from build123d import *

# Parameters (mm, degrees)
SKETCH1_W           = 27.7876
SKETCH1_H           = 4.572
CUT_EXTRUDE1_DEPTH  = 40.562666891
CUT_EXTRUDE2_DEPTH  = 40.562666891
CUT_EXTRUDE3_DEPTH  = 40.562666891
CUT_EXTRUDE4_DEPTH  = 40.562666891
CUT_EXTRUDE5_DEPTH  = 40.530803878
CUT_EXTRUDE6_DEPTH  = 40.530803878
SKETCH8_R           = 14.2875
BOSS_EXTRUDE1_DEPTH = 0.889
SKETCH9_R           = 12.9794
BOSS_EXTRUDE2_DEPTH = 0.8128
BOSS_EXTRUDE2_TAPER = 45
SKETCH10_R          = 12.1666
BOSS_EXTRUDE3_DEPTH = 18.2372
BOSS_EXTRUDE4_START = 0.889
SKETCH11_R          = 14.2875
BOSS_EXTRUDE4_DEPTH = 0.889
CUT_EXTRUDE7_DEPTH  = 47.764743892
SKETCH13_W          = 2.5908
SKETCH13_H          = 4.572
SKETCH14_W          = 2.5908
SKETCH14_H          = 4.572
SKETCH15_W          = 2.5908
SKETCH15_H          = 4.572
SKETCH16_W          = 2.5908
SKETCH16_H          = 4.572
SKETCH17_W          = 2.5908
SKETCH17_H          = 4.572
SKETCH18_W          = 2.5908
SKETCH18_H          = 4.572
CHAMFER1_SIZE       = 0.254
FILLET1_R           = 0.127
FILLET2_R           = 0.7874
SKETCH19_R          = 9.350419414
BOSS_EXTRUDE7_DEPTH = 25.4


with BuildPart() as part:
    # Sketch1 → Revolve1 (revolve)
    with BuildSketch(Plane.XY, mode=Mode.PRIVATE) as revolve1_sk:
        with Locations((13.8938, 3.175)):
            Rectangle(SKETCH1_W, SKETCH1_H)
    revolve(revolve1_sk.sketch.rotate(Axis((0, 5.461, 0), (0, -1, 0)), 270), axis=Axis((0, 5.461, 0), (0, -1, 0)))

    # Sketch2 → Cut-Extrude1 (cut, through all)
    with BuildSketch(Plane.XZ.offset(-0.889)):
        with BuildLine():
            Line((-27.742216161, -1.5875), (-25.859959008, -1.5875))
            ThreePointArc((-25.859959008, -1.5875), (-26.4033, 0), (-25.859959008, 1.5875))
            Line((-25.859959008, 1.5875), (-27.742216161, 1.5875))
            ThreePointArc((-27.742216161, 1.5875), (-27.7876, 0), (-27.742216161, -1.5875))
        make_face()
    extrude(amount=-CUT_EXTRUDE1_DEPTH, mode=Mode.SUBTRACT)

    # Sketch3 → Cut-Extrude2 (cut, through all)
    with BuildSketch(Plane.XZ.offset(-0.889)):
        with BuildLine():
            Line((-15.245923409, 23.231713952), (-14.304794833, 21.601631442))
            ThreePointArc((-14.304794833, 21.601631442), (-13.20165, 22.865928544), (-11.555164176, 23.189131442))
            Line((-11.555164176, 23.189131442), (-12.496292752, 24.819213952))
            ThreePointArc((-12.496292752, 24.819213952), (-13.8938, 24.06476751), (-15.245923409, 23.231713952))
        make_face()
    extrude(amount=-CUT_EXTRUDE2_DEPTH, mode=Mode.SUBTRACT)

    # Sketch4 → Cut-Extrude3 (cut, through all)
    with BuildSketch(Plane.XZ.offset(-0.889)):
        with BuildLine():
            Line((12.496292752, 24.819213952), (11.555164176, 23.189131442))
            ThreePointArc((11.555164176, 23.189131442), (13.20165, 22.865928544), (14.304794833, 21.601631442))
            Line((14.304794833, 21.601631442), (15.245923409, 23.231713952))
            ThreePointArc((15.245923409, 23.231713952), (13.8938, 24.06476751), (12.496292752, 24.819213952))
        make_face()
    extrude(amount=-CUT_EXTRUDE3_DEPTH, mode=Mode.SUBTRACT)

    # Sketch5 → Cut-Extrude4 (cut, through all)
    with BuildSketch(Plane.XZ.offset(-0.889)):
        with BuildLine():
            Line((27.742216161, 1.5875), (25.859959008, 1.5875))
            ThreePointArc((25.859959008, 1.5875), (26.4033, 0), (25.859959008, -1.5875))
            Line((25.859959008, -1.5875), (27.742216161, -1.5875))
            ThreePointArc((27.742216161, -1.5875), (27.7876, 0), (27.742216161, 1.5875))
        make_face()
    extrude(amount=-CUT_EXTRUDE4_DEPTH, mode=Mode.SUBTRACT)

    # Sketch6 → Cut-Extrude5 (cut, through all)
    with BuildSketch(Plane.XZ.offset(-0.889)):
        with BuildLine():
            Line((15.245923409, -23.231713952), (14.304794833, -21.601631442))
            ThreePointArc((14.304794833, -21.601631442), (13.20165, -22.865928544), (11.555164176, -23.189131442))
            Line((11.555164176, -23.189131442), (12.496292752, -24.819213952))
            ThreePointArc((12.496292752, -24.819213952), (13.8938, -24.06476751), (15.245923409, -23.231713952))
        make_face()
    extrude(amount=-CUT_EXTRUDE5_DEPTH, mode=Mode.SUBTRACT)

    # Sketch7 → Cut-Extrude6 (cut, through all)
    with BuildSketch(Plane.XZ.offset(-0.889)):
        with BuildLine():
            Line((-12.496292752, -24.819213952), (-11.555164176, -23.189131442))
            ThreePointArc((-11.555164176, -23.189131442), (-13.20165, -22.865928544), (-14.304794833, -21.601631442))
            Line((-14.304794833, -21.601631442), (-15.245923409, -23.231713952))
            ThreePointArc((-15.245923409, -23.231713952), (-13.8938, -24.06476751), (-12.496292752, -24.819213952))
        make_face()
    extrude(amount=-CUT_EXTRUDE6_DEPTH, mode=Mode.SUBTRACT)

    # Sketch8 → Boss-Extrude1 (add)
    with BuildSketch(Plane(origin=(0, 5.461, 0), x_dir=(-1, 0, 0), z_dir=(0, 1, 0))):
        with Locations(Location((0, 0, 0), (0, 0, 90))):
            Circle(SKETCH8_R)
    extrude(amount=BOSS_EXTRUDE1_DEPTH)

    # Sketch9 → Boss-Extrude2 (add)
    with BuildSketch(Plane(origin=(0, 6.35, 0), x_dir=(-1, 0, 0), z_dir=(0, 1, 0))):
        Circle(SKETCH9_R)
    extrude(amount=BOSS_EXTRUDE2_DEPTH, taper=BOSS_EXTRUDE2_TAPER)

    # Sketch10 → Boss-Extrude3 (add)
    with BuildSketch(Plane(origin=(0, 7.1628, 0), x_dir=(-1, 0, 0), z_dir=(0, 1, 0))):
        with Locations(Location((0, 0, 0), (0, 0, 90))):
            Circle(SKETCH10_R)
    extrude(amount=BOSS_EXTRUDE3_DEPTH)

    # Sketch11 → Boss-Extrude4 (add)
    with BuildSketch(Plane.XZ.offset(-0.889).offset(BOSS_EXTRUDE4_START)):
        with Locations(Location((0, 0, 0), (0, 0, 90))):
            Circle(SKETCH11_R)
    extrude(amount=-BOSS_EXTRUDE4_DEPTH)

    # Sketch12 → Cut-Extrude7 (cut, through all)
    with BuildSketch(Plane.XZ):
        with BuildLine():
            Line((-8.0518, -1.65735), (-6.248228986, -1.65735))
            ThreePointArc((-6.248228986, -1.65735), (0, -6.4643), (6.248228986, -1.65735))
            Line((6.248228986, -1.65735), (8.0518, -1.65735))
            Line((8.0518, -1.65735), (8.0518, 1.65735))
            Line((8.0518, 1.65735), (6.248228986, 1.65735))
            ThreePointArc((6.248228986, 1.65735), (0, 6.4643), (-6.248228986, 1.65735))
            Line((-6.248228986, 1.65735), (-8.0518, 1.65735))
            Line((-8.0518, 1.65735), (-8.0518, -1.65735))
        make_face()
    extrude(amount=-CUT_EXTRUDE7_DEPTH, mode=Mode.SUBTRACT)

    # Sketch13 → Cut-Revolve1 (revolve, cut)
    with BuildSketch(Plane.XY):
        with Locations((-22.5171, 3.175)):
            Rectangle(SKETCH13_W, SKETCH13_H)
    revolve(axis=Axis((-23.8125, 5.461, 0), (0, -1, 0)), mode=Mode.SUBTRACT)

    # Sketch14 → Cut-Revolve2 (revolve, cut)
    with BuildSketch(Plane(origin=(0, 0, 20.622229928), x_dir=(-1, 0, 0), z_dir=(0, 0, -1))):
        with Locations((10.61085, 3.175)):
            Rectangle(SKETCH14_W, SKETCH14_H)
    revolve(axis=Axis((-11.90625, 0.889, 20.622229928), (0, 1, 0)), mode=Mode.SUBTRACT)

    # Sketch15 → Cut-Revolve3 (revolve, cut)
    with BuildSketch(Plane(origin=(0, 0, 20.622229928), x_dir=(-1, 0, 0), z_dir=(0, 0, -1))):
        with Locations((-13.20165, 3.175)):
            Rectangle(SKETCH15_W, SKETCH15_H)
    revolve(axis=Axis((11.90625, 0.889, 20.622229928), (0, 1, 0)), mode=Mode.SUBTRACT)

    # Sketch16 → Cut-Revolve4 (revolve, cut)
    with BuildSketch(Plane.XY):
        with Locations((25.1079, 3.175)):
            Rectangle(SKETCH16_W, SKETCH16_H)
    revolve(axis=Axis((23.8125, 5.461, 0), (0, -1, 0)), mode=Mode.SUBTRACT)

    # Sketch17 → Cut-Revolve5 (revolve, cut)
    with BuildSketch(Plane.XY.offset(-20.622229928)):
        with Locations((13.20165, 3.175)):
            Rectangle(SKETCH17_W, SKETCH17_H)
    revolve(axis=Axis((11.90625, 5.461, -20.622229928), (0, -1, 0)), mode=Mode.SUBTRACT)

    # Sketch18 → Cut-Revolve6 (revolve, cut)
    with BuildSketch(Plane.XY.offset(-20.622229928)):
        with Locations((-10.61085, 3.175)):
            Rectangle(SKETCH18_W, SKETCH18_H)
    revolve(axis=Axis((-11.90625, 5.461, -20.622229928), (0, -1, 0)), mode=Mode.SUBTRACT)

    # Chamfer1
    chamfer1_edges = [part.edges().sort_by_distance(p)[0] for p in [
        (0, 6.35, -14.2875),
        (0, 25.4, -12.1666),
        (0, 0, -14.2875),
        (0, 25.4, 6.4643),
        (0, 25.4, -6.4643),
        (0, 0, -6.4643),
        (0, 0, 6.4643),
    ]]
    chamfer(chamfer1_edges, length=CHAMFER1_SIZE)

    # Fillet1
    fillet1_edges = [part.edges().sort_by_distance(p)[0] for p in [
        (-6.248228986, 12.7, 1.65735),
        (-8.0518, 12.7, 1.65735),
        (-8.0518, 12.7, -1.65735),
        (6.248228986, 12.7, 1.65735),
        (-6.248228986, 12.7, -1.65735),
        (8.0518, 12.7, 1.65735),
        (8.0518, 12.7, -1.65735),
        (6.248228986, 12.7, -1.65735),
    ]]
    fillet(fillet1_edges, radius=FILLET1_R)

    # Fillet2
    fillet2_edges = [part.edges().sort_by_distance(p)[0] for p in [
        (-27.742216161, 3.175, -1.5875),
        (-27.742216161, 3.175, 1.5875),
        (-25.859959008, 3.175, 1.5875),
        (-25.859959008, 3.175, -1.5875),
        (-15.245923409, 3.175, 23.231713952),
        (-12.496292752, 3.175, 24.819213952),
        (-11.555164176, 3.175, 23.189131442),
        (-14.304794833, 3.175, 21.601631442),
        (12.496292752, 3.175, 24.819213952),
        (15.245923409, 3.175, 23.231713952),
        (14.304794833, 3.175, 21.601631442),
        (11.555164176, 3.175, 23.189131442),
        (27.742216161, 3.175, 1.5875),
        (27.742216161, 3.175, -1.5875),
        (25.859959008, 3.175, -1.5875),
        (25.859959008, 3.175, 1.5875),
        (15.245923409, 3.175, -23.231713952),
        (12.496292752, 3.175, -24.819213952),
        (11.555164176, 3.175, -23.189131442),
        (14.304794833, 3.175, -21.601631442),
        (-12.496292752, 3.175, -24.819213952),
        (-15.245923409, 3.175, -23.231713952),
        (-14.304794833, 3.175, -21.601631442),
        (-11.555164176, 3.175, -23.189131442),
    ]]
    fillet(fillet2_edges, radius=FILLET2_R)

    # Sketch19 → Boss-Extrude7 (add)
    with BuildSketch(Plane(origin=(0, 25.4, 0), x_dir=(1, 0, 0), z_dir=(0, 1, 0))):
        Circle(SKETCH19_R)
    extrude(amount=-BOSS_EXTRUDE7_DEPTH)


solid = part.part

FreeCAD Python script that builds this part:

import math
import FreeCAD as App
import Part
import Sketcher
Q = App.Units.Quantity


def edges_at(feature, points):
    """Names of the edges that pass closest to the given points."""
    edges = feature.Shape.Edges
    near = lambda p: min(range(len(edges)), key=lambda i: edges[i].distToShape(Part.Vertex(*p))[0])
    return sorted({f"Edge{near(p) + 1}" for p in points})


def add_polygon(sketch, points):
    """Adds a closed chain of lines whose ends are joined by coincident constraints."""
    first, n = sketch.GeometryCount, len(points)
    for a, b in zip(points, points[1:] + points[:1]):
        sketch.addGeometry(Part.LineSegment(App.Vector(*a, 0), App.Vector(*b, 0)), False)
    for i in range(n):
        sketch.addConstraint(Sketcher.Constraint("Coincident", first + i, 2, first + (i + 1) % n, 1))

doc = App.newDocument("Part")
params = doc.addObject("Spreadsheet::Sheet", "Params")
for row, (alias, value) in enumerate([
    ("sketch1_height", "0.18 in"),
    ("sketch1_width", "1.094 in"),
    ("revolution_angle", "360 deg"),
    ("sketch2_radius", "0.102 in"),
    ("sketch2_radius2", "1.094 in"),
    ("sketch3_radius", "0.102 in"),
    ("sketch3_radius2", "1.094 in"),
    ("sketch4_radius", "0.102 in"),
    ("sketch4_radius2", "1.094 in"),
    ("sketch5_radius", "0.102 in"),
    ("sketch5_radius2", "1.094 in"),
    ("sketch6_radius", "0.102 in"),
    ("sketch6_radius2", "1.094 in"),
    ("sketch7_radius", "0.102 in"),
    ("sketch7_radius2", "1.094 in"),
    ("sketch8_diameter", "1.125 in"),
    ("pad1_length", "0.035 in"),
    ("sketch9_diameter", "1.022 in"),
    ("pad2_length", "0.032 in"),
    ("pad2_taper", "-45 deg"),
    ("sketch10_diameter", "0.958 in"),
    ("pad3_length", "0.718 in"),
    ("sketch11_diameter", "1.125 in"),
    ("pad4_length", "0.035 in"),
    ("sketch13_height", "0.18 in"),
    ("sketch13_width", "0.102 in"),
    ("groove_angle", "360 deg"),
    ("sketch14_height", "0.18 in"),
    ("sketch14_width", "0.102 in"),
    ("groove2_angle", "360 deg"),
    ("sketch15_height", "0.18 in"),
    ("sketch15_width", "0.102 in"),
    ("groove3_angle", "360 deg"),
    ("sketch16_height", "0.18 in"),
    ("sketch16_width", "0.102 in"),
    ("groove4_angle", "360 deg"),
    ("sketch17_height", "0.18 in"),
    ("sketch17_width", "0.102 in"),
    ("groove5_angle", "360 deg"),
    ("sketch18_height", "0.18 in"),
    ("sketch18_width", "0.102 in"),
    ("groove6_angle", "360 deg"),
    ("chamfer_size", "0.01 in"),
    ("fillet_radius", "0.005 in"),
    ("fillet2_radius", "0.031 in"),
    ("pad5_length", "1 in"),
], start=1):
    params.set(f"A{row}", alias)
    params.set(f"B{row}", "=" + value)
    params.setAlias(f"B{row}", alias)

body = doc.addObject("PartDesign::Body", "Body")

sketch1 = body.newObject("Sketcher::SketchObject", "Sketch")
sketch1.AttachmentSupport = (doc.getObject("XY_Plane"), [""])
sketch1.MapMode = "FlatFace"
add_polygon(sketch1, [(0, 5.5), (0, 0.9), (27.8, 0.9), (27.8, 5.5)])
sketch1.addConstraint([
    Sketcher.Constraint("Vertical", 0),
    Sketcher.Constraint("Horizontal", 1),
    Sketcher.Constraint("Vertical", 2),
    Sketcher.Constraint("Horizontal", 3),
    Sketcher.Constraint("PointOnObject", 0, 2, -2),
    Sketcher.Constraint("DistanceY", 0, 2, 0, 1, Q("0.18 in")),
    Sketcher.Constraint("DistanceX", 1, 1, 1, 2, Q("1.094 in")),
    Sketcher.Constraint("DistanceY", -1, 1, 0, 2, Q("0.035 in")),
])
sketch1.setExpression("Constraints[9]", "Params.sketch1_height")
sketch1.setExpression("Constraints[10]", "Params.sketch1_width")
revolution = body.newObject("PartDesign::Revolution", "Revolution")
revolution.Profile = sketch1
revolution.ReferenceAxis = (sketch1, ["V_Axis"])
revolution.setExpression("Angle", "Params.revolution_angle")

sketch2 = body.newObject("Sketcher::SketchObject", "Sketch001")
sketch2.AttachmentSupport = (doc.getObject("XZ_Plane"), [""])
sketch2.MapMode = "FlatFace"
sketch2.AttachmentOffset = App.Placement(App.Vector(0, 0, -0.035 * 25.4), App.Rotation())
sketch2.addGeometry([
    Part.LineSegment(App.Vector(-27.7, -1.6, 0), App.Vector(-25.9, -1.6, 0)),
    Part.ArcOfCircle(Part.Circle(App.Vector(-23.8, 0, 0), App.Vector(0, 0, 1), 2.6), math.radians(142), math.radians(218)),
    Part.LineSegment(App.Vector(-25.9, 1.6, 0), App.Vector(-27.7, 1.6, 0)),
    Part.ArcOfCircle(Part.Circle(App.Vector(0, 0, 0), App.Vector(0, 0, 1), 27.8), math.radians(176.72), math.radians(183.28)),
], False)
sketch2.addConstraint([
    Sketcher.Constraint("Coincident", 0, 2, 1, 2),
    Sketcher.Constraint("Coincident", 1, 1, 2, 1),
    Sketcher.Constraint("Coincident", 2, 2, 3, 1),
    Sketcher.Constraint("Coincident", 3, 2, 0, 1),
    Sketcher.Constraint("Horizontal", 0),
    Sketcher.Constraint("Horizontal", 2),
    Sketcher.Constraint("Coincident", 3, 3, -1, 1),
    Sketcher.Constraint("Symmetric", 0, 2, 1, 1, -1),
    Sketcher.Constraint("Radius", 1, Q("0.102 in")),
    Sketcher.Constraint("Radius", 3, Q("1.094 in")),
    Sketcher.Constraint("DistanceX", 1, 3, -1, 1, Q("0.9375 in")),
    Sketcher.Constraint("DistanceY", 0, 2, -1, 1, Q("0.0625 in")),
])
sketch2.setExpression("Constraints[8]", "Params.sketch2_radius")
sketch2.setExpression("Constraints[9]", "Params.sketch2_radius2")
pocket1 = body.newObject("PartDesign::Pocket", "Pocket")
pocket1.Profile = sketch2
pocket1.Type = "ThroughAll"

sketch3 = body.newObject("Sketcher::SketchObject", "Sketch002")
sketch3.AttachmentSupport = (doc.getObject("XZ_Plane"), [""])
sketch3.MapMode = "FlatFace"
sketch3.AttachmentOffset = App.Placement(App.Vector(0, 0, -0.035 * 25.4), App.Rotation())
sketch3.addGeometry([
    Part.LineSegment(App.Vector(-15.245923, 23.231714, 0), App.Vector(-14.304795, 21.601631, 0)),
    Part.ArcOfCircle(Part.Circle(App.Vector(-11.90625, 20.62223, 0), App.Vector(0, 0, 1), 2.5908), math.radians(82.211743), math.radians(157.788257)),
    Part.LineSegment(App.Vector(-11.555164, 23.189131, 0), App.Vector(-12.496293, 24.819214, 0)),
    Part.ArcOfCircle(Part.Circle(App.Vector(0, 0, 0), App.Vector(0, 0, 1), 27.7876), math.radians(116.72492), math.radians(123.27508)),
], False)
sketch3.addConstraint([
    Sketcher.Constraint("Coincident", 0, 2, 1, 2),
    Sketcher.Constraint("Coincident", 1, 1, 2, 1),
    Sketcher.Constraint("Coincident", 2, 2, 3, 1),
    Sketcher.Constraint("Coincident", 3, 2, 0, 1),
    Sketcher.Constraint("Coincident", 3, 3, -1, 1),
    Sketcher.Constraint("Parallel", 0, 2),
    Sketcher.Constraint("Equal", 0, 2),
    Sketcher.Constraint("Angle", 0, Q("-60 deg")),
    Sketcher.Constraint("Radius", 1, Q("0.102 in")),
    Sketcher.Constraint("Radius", 3, Q("1.094 in")),
    Sketcher.Constraint("DistanceX", 1, 3, -1, 1, Q("0.46875 in")),
    Sketcher.Constraint("DistanceY", 0, 2, 1, 1, Q("0.0625 in")),
    Sketcher.Constraint("DistanceY", 1, 3, 0, 2, 0.979402),
])
sketch3.setExpression("Constraints[8]", "Params.sketch3_radius")
sketch3.setExpression("Constraints[9]", "Params.sketch3_radius2")
pocket2 = body.newObject("PartDesign::Pocket", "Pocket001")
pocket2.Profile = sketch3
pocket2.Type = "ThroughAll"

sketch4 = body.newObject("Sketcher::SketchObject", "Sketch003")
sketch4.AttachmentSupport = (doc.getObject("XZ_Plane"), [""])
sketch4.MapMode = "FlatFace"
sketch4.AttachmentOffset = App.Placement(App.Vector(0, 0, -0.035 * 25.4), App.Rotation())
sketch4.addGeometry([
    Part.LineSegment(App.Vector(12.496293, 24.819214, 0), App.Vector(11.555164, 23.189131, 0)),
    Part.ArcOfCircle(Part.Circle(App.Vector(11.90625, 20.62223, 0), App.Vector(0, 0, 1), 2.5908), math.radians(22.211743), math.radians(97.788257)),
    Part.LineSegment(App.Vector(14.304795, 21.601631, 0), App.Vector(15.245923, 23.231714, 0)),
    Part.ArcOfCircle(Part.Circle(App.Vector(0, 0, 0), App.Vector(0, 0, 1), 27.7876), math.radians(56.72492), math.radians(63.27508)),
], False)
sketch4.addConstraint([
    Sketcher.Constraint("Coincident", 0, 2, 1, 2),
    Sketcher.Constraint("Coincident", 1, 1, 2, 1),
    Sketcher.Constraint("Coincident", 2, 2, 3, 1),
    Sketcher.Constraint("Coincident", 3, 2, 0, 1),
    Sketcher.Constraint("Coincident", 3, 3, -1, 1),
    Sketcher.Constraint("Radius", 1, Q("0.102 in")),
    Sketcher.Constraint("Radius", 3, Q("1.094 in")),
    Sketcher.Constraint("DistanceX", -1, 1, 1, 3, Q("0.46875 in")),
    Sketcher.Constraint("DistanceY", 1, 1, 0, 2, Q("0.0625 in")),
    Sketcher.Constraint("DistanceY", 2, 2, 3, 2, Q("0.0625 in")),
    Sketcher.Constraint("DistanceY", 1, 3, 0, 2, 2.566902),
    Sketcher.Constraint("DistanceY", -1, 1, 1, 3, 20.62223),
    Sketcher.Constraint("DistanceX", 1, 1, 2, 2, 0.941129),
])
sketch4.setExpression("Constraints[5]", "Params.sketch4_radius")
sketch4.setExpression("Constraints[6]", "Params.sketch4_radius2")
pocket3 = body.newObject("PartDesign::Pocket", "Pocket002")
pocket3.Profile = sketch4
pocket3.Type = "ThroughAll"

sketch5 = body.newObject("Sketcher::SketchObject", "Sketch004")
sketch5.AttachmentSupport = (doc.getObject("XZ_Plane"), [""])
sketch5.MapMode = "FlatFace"
sketch5.AttachmentOffset = App.Placement(App.Vector(0, 0, -0.035 * 25.4), App.Rotation())
sketch5.addGeometry([
    Part.LineSegment(App.Vector(27.7, 1.6, 0), App.Vector(25.9, 1.6, 0)),
    Part.ArcOfCircle(Part.Circle(App.Vector(23.8, 0, 0), App.Vector(0, 0, 1), 2.6), math.radians(-38), math.radians(38)),
    Part.LineSegment(App.Vector(25.9, -1.6, 0), App.Vector(27.7, -1.6, 0)),
    Part.ArcOfCircle(Part.Circle(App.Vector(0, 0, 0), App.Vector(0, 0, 1), 27.8), math.radians(-3.28), math.radians(3.28)),
], False)
sketch5.addConstraint([
    Sketcher.Constraint("Coincident", 0, 2, 1, 2),
    Sketcher.Constraint("Coincident", 1, 1, 2, 1),
    Sketcher.Constraint("Coincident", 2, 2, 3, 1),
    Sketcher.Constraint("Coincident", 3, 2, 0, 1),
    Sketcher.Constraint("Horizontal", 0),
    Sketcher.Constraint("Horizontal", 2),
    Sketcher.Constraint("Coincident", 3, 3, -1, 1),
    Sketcher.Constraint("Symmetric", 0, 2, 1, 1, -1),
    Sketcher.Constraint("Radius", 1, Q("0.102 in")),
    Sketcher.Constraint("Radius", 3, Q("1.094 in")),
    Sketcher.Constraint("DistanceX", -1, 1, 1, 3, Q("0.9375 in")),
    Sketcher.Constraint("DistanceY", -1, 1, 0, 2, Q("0.0625 in")),
])
sketch5.setExpression("Constraints[8]", "Params.sketch5_radius")
sketch5.setExpression("Constraints[9]", "Params.sketch5_radius2")
pocket4 = body.newObject("PartDesign::Pocket", "Pocket003")
pocket4.Profile = sketch5
pocket4.Type = "ThroughAll"

sketch6 = body.newObject("Sketcher::SketchObject", "Sketch005")
sketch6.AttachmentSupport = (doc.getObject("XZ_Plane"), [""])
sketch6.MapMode = "FlatFace"
sketch6.AttachmentOffset = App.Placement(App.Vector(0, 0, -0.035 * 25.4), App.Rotation())
sketch6.addGeometry([
    Part.LineSegment(App.Vector(15.245923, -23.231714, 0), App.Vector(14.304795, -21.601631, 0)),
    Part.ArcOfCircle(Part.Circle(App.Vector(11.90625, -20.62223, 0), App.Vector(0, 0, 1), 2.5908), math.radians(-97.788257), math.radians(-22.211743)),
    Part.LineSegment(App.Vector(11.555164, -23.189131, 0), App.Vector(12.496293, -24.819214, 0)),
    Part.ArcOfCircle(Part.Circle(App.Vector(0, 0, 0), App.Vector(0, 0, 1), 27.7876), math.radians(-63.27508), math.radians(-56.72492)),
], False)
sketch6.addConstraint([
    Sketcher.Constraint("Coincident", 0, 2, 1, 2),
    Sketcher.Constraint("Coincident", 1, 1, 2, 1),
    Sketcher.Constraint("Coincident", 2, 2, 3, 1),
    Sketcher.Constraint("Coincident", 3, 2, 0, 1),
    Sketcher.Constraint("Coincident", 3, 3, -1, 1),
    Sketcher.Constraint("Parallel", 0, 2),
    Sketcher.Constraint("Equal", 0, 2),
    Sketcher.Constraint("Angle", 0, Q("120 deg")),
    Sketcher.Constraint("Radius", 1, Q("0.102 in")),
    Sketcher.Constraint("Radius", 3, Q("1.094 in")),
    Sketcher.Constraint("DistanceX", -1, 1, 1, 3, Q("0.46875 in")),
    Sketcher.Constraint("DistanceY", 1, 1, 0, 2, Q("0.0625 in")),
    Sketcher.Constraint("DistanceY", 0, 2, 1, 3, 0.979402),
])
sketch6.setExpression("Constraints[8]", "Params.sketch6_radius")
sketch6.setExpression("Constraints[9]", "Params.sketch6_radius2")
pocket5 = body.newObject("PartDesign::Pocket", "Pocket004")
pocket5.Profile = sketch6
pocket5.Type = "ThroughAll"

sketch7 = body.newObject("Sketcher::SketchObject", "Sketch006")
sketch7.AttachmentSupport = (doc.getObject("XZ_Plane"), [""])
sketch7.MapMode = "FlatFace"
sketch7.AttachmentOffset = App.Placement(App.Vector(0, 0, -0.035 * 25.4), App.Rotation())
sketch7.addGeometry([
    Part.LineSegment(App.Vector(-12.496293, -24.819214, 0), App.Vector(-11.555164, -23.189131, 0)),
    Part.ArcOfCircle(Part.Circle(App.Vector(-11.90625, -20.62223, 0), App.Vector(0, 0, 1), 2.5908), math.radians(-157.788257), math.radians(-82.211743)),
    Part.LineSegment(App.Vector(-14.304795, -21.601631, 0), App.Vector(-15.245923, -23.231714, 0)),
    Part.ArcOfCircle(Part.Circle(App.Vector(0, 0, 0), App.Vector(0, 0, 1), 27.7876), math.radians(-123.27508), math.radians(-116.72492)),
], False)
sketch7.addConstraint([
    Sketcher.Constraint("Coincident", 0, 2, 1, 2),
    Sketcher.Constraint("Coincident", 1, 1, 2, 1),
    Sketcher.Constraint("Coincident", 2, 2, 3, 1),
    Sketcher.Constraint("Coincident", 3, 2, 0, 1),
    Sketcher.Constraint("Coincident", 3, 3, -1, 1),
    Sketcher.Constraint("Parallel", 0, 2),
    Sketcher.Constraint("Equal", 0, 2),
    Sketcher.Constraint("Angle", 0, Q("60 deg")),
    Sketcher.Constraint("Radius", 1, Q("0.102 in")),
    Sketcher.Constraint("Radius", 3, Q("1.094 in")),
    Sketcher.Constraint("DistanceX", 1, 3, -1, 1, Q("0.46875 in")),
    Sketcher.Constraint("DistanceY", 0, 2, 1, 1, Q("0.0625 in")),
    Sketcher.Constraint("DistanceY", 0, 2, 1, 3, 2.566902),
])
sketch7.setExpression("Constraints[8]", "Params.sketch7_radius")
sketch7.setExpression("Constraints[9]", "Params.sketch7_radius2")
pocket6 = body.newObject("PartDesign::Pocket", "Pocket005")
pocket6.Profile = sketch7
pocket6.Type = "ThroughAll"

sketch8 = body.newObject("Sketcher::SketchObject", "Sketch007")
sketch8.AttachmentSupport = (doc.getObject("XZ_Plane"), [""])
sketch8.MapMode = "FlatFace"
sketch8.AttachmentOffset = App.Placement(App.Vector(0, 0, -0.215 * 25.4), App.Rotation())
sketch8.addGeometry(Part.Circle(App.Vector(0, 0, 0), App.Vector(0, 0, 1), 14), False)
sketch8.addConstraint([
    Sketcher.Constraint("Coincident", 0, 3, -1, 1),
    Sketcher.Constraint("Diameter", 0, Q("1.125 in")),
])
sketch8.setExpression("Constraints[1]", "Params.sketch8_diameter")
pad1 = body.newObject("PartDesign::Pad", "Pad")
pad1.Profile = sketch8
pad1.setExpression("Length", "Params.pad1_length")
pad1.Reversed = True

sketch9 = body.newObject("Sketcher::SketchObject", "Sketch008")
sketch9.AttachmentSupport = (doc.getObject("XZ_Plane"), [""])
sketch9.MapMode = "FlatFace"
sketch9.AttachmentOffset = App.Placement(App.Vector(0, 0, -0.25 * 25.4), App.Rotation())
sketch9.addGeometry(Part.Circle(App.Vector(0, 0, 0), App.Vector(0, 0, 1), 13), False)
sketch9.addConstraint([
    Sketcher.Constraint("Coincident", 0, 3, -1, 1),
    Sketcher.Constraint("Diameter", 0, Q("1.022 in")),
])
sketch9.setExpression("Constraints[1]", "Params.sketch9_diameter")
pad2 = body.newObject("PartDesign::Pad", "Pad001")
pad2.Profile = sketch9
pad2.setExpression("Length", "Params.pad2_length")
pad2.Reversed = True
pad2.setExpression("TaperAngle", "Params.pad2_taper")

sketch10 = body.newObject("Sketcher::SketchObject", "Sketch009")
sketch10.AttachmentSupport = (doc.getObject("XZ_Plane"), [""])
sketch10.MapMode = "FlatFace"
sketch10.AttachmentOffset = App.Placement(App.Vector(0, 0, -0.282 * 25.4), App.Rotation())
sketch10.addGeometry(Part.Circle(App.Vector(0, 0, 0), App.Vector(0, 0, 1), 12), False)
sketch10.addConstraint([
    Sketcher.Constraint("Coincident", 0, 3, -1, 1),
    Sketcher.Constraint("Diameter", 0, Q("0.958 in")),
])
sketch10.setExpression("Constraints[1]", "Params.sketch10_diameter")
pad3 = body.newObject("PartDesign::Pad", "Pad002")
pad3.Profile = sketch10
pad3.setExpression("Length", "Params.pad3_length")
pad3.Reversed = True

sketch11 = body.newObject("Sketcher::SketchObject", "Sketch010")
sketch11.AttachmentSupport = (doc.getObject("XZ_Plane"), [""])
sketch11.MapMode = "FlatFace"
sketch11.addGeometry(Part.Circle(App.Vector(0, 0, 0), App.Vector(0, 0, 1), 14), False)
sketch11.addConstraint([
    Sketcher.Constraint("Coincident", 0, 3, -1, 1),
    Sketcher.Constraint("Diameter", 0, Q("1.125 in")),
])
sketch11.setExpression("Constraints[1]", "Params.sketch11_diameter")
pad4 = body.newObject("PartDesign::Pad", "Pad003")
pad4.Profile = sketch11
pad4.setExpression("Length", "Params.pad4_length")
pad4.Reversed = True

sketch12 = body.newObject("Sketcher::SketchObject", "Sketch011")
sketch12.AttachmentSupport = (doc.getObject("XZ_Plane"), [""])
sketch12.MapMode = "FlatFace"
sketch12.addGeometry([
    Part.LineSegment(App.Vector(-8.1, -1.7, 0), App.Vector(-6.2, -1.7, 0)),
    Part.ArcOfCircle(Part.Circle(App.Vector(0, 0, 0), App.Vector(0, 0, 1), 6.5), math.radians(-165), math.radians(-15)),
    Part.LineSegment(App.Vector(6.2, -1.7, 0), App.Vector(8.1, -1.7, 0)),
    Part.LineSegment(App.Vector(8.1, -1.7, 0), App.Vector(8.1, 1.7, 0)),
    Part.LineSegment(App.Vector(8.1, 1.7, 0), App.Vector(6.2, 1.7, 0)),
    Part.ArcOfCircle(Part.Circle(App.Vector(0, 0, 0), App.Vector(0, 0, 1), 6.5), math.radians(15), math.radians(165)),
    Part.LineSegment(App.Vector(-6.2, 1.7, 0), App.Vector(-8.1, 1.7, 0)),
    Part.LineSegment(App.Vector(-8.1, 1.7, 0), App.Vector(-8.1, -1.7, 0)),
], False)
sketch12.addConstraint([
    Sketcher.Constraint("Coincident", 0, 2, 1, 1),
    Sketcher.Constraint("Coincident", 1, 2, 2, 1),
    Sketcher.Constraint("Coincident", 2, 2, 3, 1),
    Sketcher.Constraint("Coincident", 3, 2, 4, 1),
    Sketcher.Constraint("Coincident", 4, 2, 5, 1),
    Sketcher.Constraint("Coincident", 5, 2, 6, 1),
    Sketcher.Constraint("Coincident", 6, 2, 7, 1),
    Sketcher.Constraint("Coincident", 7, 2, 0, 1),
    Sketcher.Constraint("Horizontal", 0),
    Sketcher.Constraint("Horizontal", 2),
    Sketcher.Constraint("Vertical", 3),
    Sketcher.Constraint("Horizontal", 4),
    Sketcher.Constraint("Horizontal", 6),
    Sketcher.Constraint("Vertical", 7),
    Sketcher.Constraint("Coincident", 1, 3, -1, 1),
    Sketcher.Constraint("Coincident", 5, 3, -1, 1),
    Sketcher.Constraint("Equal", 1, 5),
    Sketcher.Constraint("Symmetric", 2, 2, 6, 2, -1, 1),
    Sketcher.Constraint("Horizontal", 0, 2, 1, 2),
    Sketcher.Constraint("Horizontal", 4, 2, 5, 2),
    Sketcher.Constraint("Radius", 1, Q("0.2545 in")),
    Sketcher.Constraint("DistanceY", 3, 1, 3, 2, Q("0.1305 in")),
    Sketcher.Constraint("DistanceX", -1, 1, 2, 2, Q("0.317 in")),
])
pocket7 = body.newObject("PartDesign::Pocket", "Pocket006")
pocket7.Profile = sketch12
pocket7.Type = "ThroughAll"

sketch13 = body.newObject("Sketcher::SketchObject", "Sketch012")
sketch13.AttachmentSupport = (doc.getObject("XY_Plane"), [""])
sketch13.MapMode = "FlatFace"
add_polygon(sketch13, [(-23.8, 5.5), (-23.8, 0.9), (-21.2, 0.9), (-21.2, 5.5)])
sketch13.addGeometry(Part.LineSegment(App.Vector(-23.8, 5.5, 0), App.Vector(-23.8, 0.9, 0)), True)
sketch13.addConstraint([
    Sketcher.Constraint("Vertical", 0),
    Sketcher.Constraint("Horizontal", 1),
    Sketcher.Constraint("Vertical", 2),
    Sketcher.Constraint("Horizontal", 3),
    Sketcher.Constraint("Vertical", 4),
    Sketcher.Constraint("Coincident", 4, 1, 3, 2),
    Sketcher.Constraint("Horizontal", 1, 2, 4, 2),
    Sketcher.Constraint("DistanceY", 0, 2, 0, 1, Q("0.18 in")),
    Sketcher.Constraint("DistanceX", 1, 1, 1, 2, Q("0.102 in")),
    Sketcher.Constraint("DistanceX", 0, 2, -1, 1, Q("0.9375 in")),
    Sketcher.Constraint("DistanceY", -1, 1, 0, 2, Q("0.035 in")),
])
sketch13.setExpression("Constraints[11]", "Params.sketch13_height")
sketch13.setExpression("Constraints[12]", "Params.sketch13_width")
groove = body.newObject("PartDesign::Groove", "Groove")
groove.Profile = sketch13
groove.ReferenceAxis = (sketch13, ["Axis0"])
groove.setExpression("Angle", "Params.groove_angle")

sketch14 = body.newObject("Sketcher::SketchObject", "Sketch013")
sketch14.AttachmentSupport = (doc.getObject("XY_Plane"), [""])
sketch14.MapMode = "FlatFace"
sketch14.AttachmentOffset = App.Placement(App.Vector(0, 0, 20.62223), App.Rotation())
add_polygon(sketch14, [(-9.3, 5.5), (-9.3, 0.9), (-11.9, 0.9), (-11.9, 5.5)])
sketch14.addGeometry(Part.LineSegment(App.Vector(-11.9, 0.9, 0), App.Vector(-11.9, 5.5, 0)), True)
sketch14.addConstraint([
    Sketcher.Constraint("Vertical", 0),
    Sketcher.Constraint("Horizontal", 1),
    Sketcher.Constraint("Vertical", 2),
    Sketcher.Constraint("Horizontal", 3),
    Sketcher.Constraint("Vertical", 4),
    Sketcher.Constraint("Coincident", 4, 1, 1, 2),
    Sketcher.Constraint("Horizontal", 3, 2, 4, 2),
    Sketcher.Constraint("DistanceY", 0, 2, 0, 1, Q("0.18 in")),
    Sketcher.Constraint("DistanceX", 1, 2, 1, 1, Q("0.102 in")),
    Sketcher.Constraint("DistanceY", -1, 1, 0, 2, Q("0.035 in")),
    Sketcher.Constraint("DistanceX", 1, 2, -1, 1, Q("0.46875 in")),
])
sketch14.setExpression("Constraints[11]", "Params.sketch14_height")
sketch14.setExpression("Constraints[12]", "Params.sketch14_width")
groove2 = body.newObject("PartDesign::Groove", "Groove001")
groove2.Profile = sketch14
groove2.ReferenceAxis = (sketch14, ["Axis0"])
groove2.setExpression("Angle", "Params.groove2_angle")

sketch15 = body.newObject("Sketcher::SketchObject", "Sketch014")
sketch15.AttachmentSupport = (doc.getObject("XY_Plane"), [""])
sketch15.MapMode = "FlatFace"
sketch15.AttachmentOffset = App.Placement(App.Vector(0, 0, 20.62223), App.Rotation())
add_polygon(sketch15, [(14.5, 5.5), (14.5, 0.9), (11.9, 0.9), (11.9, 5.5)])
sketch15.addGeometry(Part.LineSegment(App.Vector(11.9, 0.9, 0), App.Vector(11.9, 5.5, 0)), True)
sketch15.addConstraint([
    Sketcher.Constraint("Vertical", 0),
    Sketcher.Constraint("Horizontal", 1),
    Sketcher.Constraint("Vertical", 2),
    Sketcher.Constraint("Horizontal", 3),
    Sketcher.Constraint("Vertical", 4),
    Sketcher.Constraint("Coincident", 4, 1, 1, 2),
    Sketcher.Constraint("Horizontal", 3, 2, 4, 2),
    Sketcher.Constraint("DistanceY", 0, 2, 0, 1, Q("0.18 in")),
    Sketcher.Constraint("DistanceX", 1, 2, 1, 1, Q("0.102 in")),
    Sketcher.Constraint("DistanceY", -1, 1, 0, 2, Q("0.035 in")),
    Sketcher.Constraint("DistanceX", -1, 1, 1, 2, Q("0.46875 in")),
])
sketch15.setExpression("Constraints[11]", "Params.sketch15_height")
sketch15.setExpression("Constraints[12]", "Params.sketch15_width")
groove3 = body.newObject("PartDesign::Groove", "Groove002")
groove3.Profile = sketch15
groove3.ReferenceAxis = (sketch15, ["Axis0"])
groove3.setExpression("Angle", "Params.groove3_angle")

sketch16 = body.newObject("Sketcher::SketchObject", "Sketch015")
sketch16.AttachmentSupport = (doc.getObject("XY_Plane"), [""])
sketch16.MapMode = "FlatFace"
add_polygon(sketch16, [(23.8, 5.5), (23.8, 0.9), (26.4, 0.9), (26.4, 5.5)])
sketch16.addGeometry(Part.LineSegment(App.Vector(23.8, 5.5, 0), App.Vector(23.8, 0.9, 0)), True)
sketch16.addConstraint([
    Sketcher.Constraint("Vertical", 0),
    Sketcher.Constraint("Horizontal", 1),
    Sketcher.Constraint("Vertical", 2),
    Sketcher.Constraint("Horizontal", 3),
    Sketcher.Constraint("Vertical", 4),
    Sketcher.Constraint("Coincident", 4, 1, 3, 2),
    Sketcher.Constraint("Horizontal", 1, 2, 4, 2),
    Sketcher.Constraint("DistanceY", 0, 2, 0, 1, Q("0.18 in")),
    Sketcher.Constraint("DistanceX", 1, 1, 1, 2, Q("0.102 in")),
    Sketcher.Constraint("DistanceX", -1, 1, 0, 2, Q("0.9375 in")),
    Sketcher.Constraint("DistanceY", -1, 1, 0, 2, Q("0.035 in")),
])
sketch16.setExpression("Constraints[11]", "Params.sketch16_height")
sketch16.setExpression("Constraints[12]", "Params.sketch16_width")
groove4 = body.newObject("PartDesign::Groove", "Groove003")
groove4.Profile = sketch16
groove4.ReferenceAxis = (sketch16, ["Axis0"])
groove4.setExpression("Angle", "Params.groove4_angle")

sketch17 = body.newObject("Sketcher::SketchObject", "Sketch016")
sketch17.AttachmentSupport = (doc.getObject("XY_Plane"), [""])
sketch17.MapMode = "FlatFace"
sketch17.AttachmentOffset = App.Placement(App.Vector(0, 0, -20.62223), App.Rotation())
add_polygon(sketch17, [(11.9, 5.5), (11.9, 0.9), (14.5, 0.9), (14.5, 5.5)])
sketch17.addGeometry(Part.LineSegment(App.Vector(11.9, 5.5, 0), App.Vector(11.9, 0.9, 0)), True)
sketch17.addConstraint([
    Sketcher.Constraint("Vertical", 0),
    Sketcher.Constraint("Horizontal", 1),
    Sketcher.Constraint("Vertical", 2),
    Sketcher.Constraint("Horizontal", 3),
    Sketcher.Constraint("Vertical", 4),
    Sketcher.Constraint("Coincident", 4, 1, 3, 2),
    Sketcher.Constraint("Horizontal", 1, 2, 4, 2),
    Sketcher.Constraint("DistanceY", 0, 2, 0, 1, Q("0.18 in")),
    Sketcher.Constraint("DistanceX", 1, 1, 1, 2, Q("0.102 in")),
    Sketcher.Constraint("DistanceX", -1, 1, 0, 2, Q("0.46875 in")),
    Sketcher.Constraint("DistanceY", -1, 1, 0, 2, Q("0.035 in")),
])
sketch17.setExpression("Constraints[11]", "Params.sketch17_height")
sketch17.setExpression("Constraints[12]", "Params.sketch17_width")
groove5 = body.newObject("PartDesign::Groove", "Groove004")
groove5.Profile = sketch17
groove5.ReferenceAxis = (sketch17, ["Axis0"])
groove5.setExpression("Angle", "Params.groove5_angle")

sketch18 = body.newObject("Sketcher::SketchObject", "Sketch017")
sketch18.AttachmentSupport = (doc.getObject("XY_Plane"), [""])
sketch18.MapMode = "FlatFace"
sketch18.AttachmentOffset = App.Placement(App.Vector(0, 0, -20.62223), App.Rotation())
add_polygon(sketch18, [(-11.9, 5.5), (-11.9, 0.9), (-9.3, 0.9), (-9.3, 5.5)])
sketch18.addGeometry(Part.LineSegment(App.Vector(-11.9, 5.5, 0), App.Vector(-11.9, 0.9, 0)), True)
sketch18.addConstraint([
    Sketcher.Constraint("Vertical", 0),
    Sketcher.Constraint("Horizontal", 1),
    Sketcher.Constraint("Vertical", 2),
    Sketcher.Constraint("Horizontal", 3),
    Sketcher.Constraint("Vertical", 4),
    Sketcher.Constraint("Coincident", 4, 1, 3, 2),
    Sketcher.Constraint("Horizontal", 1, 2, 4, 2),
    Sketcher.Constraint("DistanceY", 0, 2, 0, 1, Q("0.18 in")),
    Sketcher.Constraint("DistanceX", 1, 1, 1, 2, Q("0.102 in")),
    Sketcher.Constraint("DistanceX", 0, 2, -1, 1, Q("0.46875 in")),
    Sketcher.Constraint("DistanceY", -1, 1, 0, 2, Q("0.035 in")),
])
sketch18.setExpression("Constraints[11]", "Params.sketch18_height")
sketch18.setExpression("Constraints[12]", "Params.sketch18_width")
groove6 = body.newObject("PartDesign::Groove", "Groove005")
groove6.Profile = sketch18
groove6.ReferenceAxis = (sketch18, ["Axis0"])
groove6.setExpression("Angle", "Params.groove6_angle")
doc.recompute()

chamfer = body.newObject("PartDesign::Chamfer", "Chamfer")
chamfer.Base = (groove6, edges_at(groove6, [
    (0, 6.35, -14.287),
    (0, 25.4, -12.167),
    (0, 0, -14.287),
    (0, 25.4, 6.464),
    (0, 25.4, -6.464),
    (0, 0, -6.464),
    (0, 0, 6.464),
]))
chamfer.setExpression("Size", "Params.chamfer_size")
doc.recompute()

fillet = body.newObject("PartDesign::Fillet", "Fillet")
fillet.Base = (chamfer, edges_at(chamfer, [
    (-6.248, 12.7, 1.657),
    (-8.052, 12.7, 1.657),
    (-8.052, 12.7, -1.657),
    (6.248, 12.7, 1.657),
    (-6.248, 12.7, -1.657),
    (8.052, 12.7, 1.657),
    (8.052, 12.7, -1.657),
    (6.248, 12.7, -1.657),
]))
fillet.setExpression("Radius", "Params.fillet_radius")
doc.recompute()

fillet2 = body.newObject("PartDesign::Fillet", "Fillet001")
fillet2.Base = (fillet, edges_at(fillet, [
    (-27.742, 3.175, -1.587),
    (-27.742, 3.175, 1.587),
    (-25.86, 3.175, 1.587),
    (-25.86, 3.175, -1.587),
    (-15.246, 3.175, 23.232),
    (-12.496, 3.175, 24.819),
    (-11.555, 3.175, 23.189),
    (-14.305, 3.175, 21.602),
    (12.496, 3.175, 24.819),
    (15.246, 3.175, 23.232),
    (14.305, 3.175, 21.602),
    (11.555, 3.175, 23.189),
    (27.742, 3.175, 1.587),
    (27.742, 3.175, -1.587),
    (25.86, 3.175, -1.587),
    (25.86, 3.175, 1.587),
    (15.246, 3.175, -23.232),
    (12.496, 3.175, -24.819),
    (11.555, 3.175, -23.189),
    (14.305, 3.175, -21.602),
    (-12.496, 3.175, -24.819),
    (-15.246, 3.175, -23.232),
    (-14.305, 3.175, -21.602),
    (-11.555, 3.175, -23.189),
]))
fillet2.setExpression("Radius", "Params.fillet2_radius")

sketch19 = body.newObject("Sketcher::SketchObject", "Sketch018")
sketch19.AttachmentSupport = (doc.getObject("XZ_Plane"), [""])
sketch19.MapMode = "FlatFace"
sketch19.AttachmentOffset = App.Placement(App.Vector(0, 0, -1 * 25.4), App.Rotation())
sketch19.addGeometry(Part.Circle(App.Vector(0, 0, 0), App.Vector(0, 0, 1), 9), False)
sketch19.addConstraint([
    Sketcher.Constraint("Coincident", 0, 3, -1, 1),
    Sketcher.Constraint("Diameter", 0, 18.700839),
])
pad5 = body.newObject("PartDesign::Pad", "Pad004")
pad5.Profile = sketch19
pad5.setExpression("Length", "Params.pad5_length")

doc.recompute()
